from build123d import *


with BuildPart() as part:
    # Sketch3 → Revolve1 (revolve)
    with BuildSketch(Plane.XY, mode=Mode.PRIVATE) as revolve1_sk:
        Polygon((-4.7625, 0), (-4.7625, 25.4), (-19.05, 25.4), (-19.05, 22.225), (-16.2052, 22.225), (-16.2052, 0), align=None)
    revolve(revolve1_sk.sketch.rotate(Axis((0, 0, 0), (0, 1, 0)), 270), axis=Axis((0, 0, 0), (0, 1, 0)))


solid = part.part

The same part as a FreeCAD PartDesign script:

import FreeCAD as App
import Part
import Sketcher
from FreeCAD import Vector
Q = App.Units.Quantity


def add_polygon(sketch, points):
    """Adds a closed chain of lines whose ends are joined by coincident constraints."""
    first, n = sketch.GeometryCount, len(points)
    for a, b in zip(points, points[1:] + points[:1]):
        sketch.addGeometry(Part.LineSegment(App.Vector(*a, 0), App.Vector(*b, 0)), False)
    for i in range(n):
        sketch.addConstraint(Sketcher.Constraint("Coincident", first + i, 2, first + (i + 1) % n, 1))

doc = App.newDocument("Part")
body = doc.addObject("PartDesign::Body", "Body")

# Sketch on XY plane
sketch1 = doc.addObject("Sketcher::SketchObject", "Sketch")
body.addObject(sketch1)
sketch1.AttachmentSupport = (doc.XY_Plane, [""])
sketch1.MapMode = "FlatFace"
add_polygon(sketch1, [(-4.7625, 0), (-4.7625, 25.4), (-19.05, 25.4), (-19.05, 22.225), (-16.2052, 22.225), (-16.2052, 0)])  # lines 0-5
sketch1.addConstraint([
    Sketcher.Constraint("Vertical", 0),
    Sketcher.Constraint("Horizontal", 1),
    Sketcher.Constraint("Vertical", 2),
    Sketcher.Constraint("Horizontal", 3),
    Sketcher.Constraint("Vertical", 4),
    Sketcher.Constraint("Horizontal", 5),
    Sketcher.Constraint("PointOnObject", 4, 2, -1),
    Sketcher.Constraint("DistanceY", 0, 1, 0, 2, Q("1 in")),
    Sketcher.Constraint("DistanceX", 1, 2, 1, 1, Q("0.5625 in")),
    Sketcher.Constraint("DistanceX", 3, 1, 3, 2, Q("0.112 in")),
    Sketcher.Constraint("DistanceY", 2, 2, 2, 1, Q("0.125 in")),
    Sketcher.Constraint("DistanceX", 1, 2, -1, 1, Q("0.75 in")),
])
revolution = doc.addObject("PartDesign::Revolution", "Revolution")
body.addObject(revolution)
revolution.Profile = sketch1
revolution.ReferenceAxis = (sketch1, ["V_Axis"])
revolution.Angle = 360

doc.recompute()
